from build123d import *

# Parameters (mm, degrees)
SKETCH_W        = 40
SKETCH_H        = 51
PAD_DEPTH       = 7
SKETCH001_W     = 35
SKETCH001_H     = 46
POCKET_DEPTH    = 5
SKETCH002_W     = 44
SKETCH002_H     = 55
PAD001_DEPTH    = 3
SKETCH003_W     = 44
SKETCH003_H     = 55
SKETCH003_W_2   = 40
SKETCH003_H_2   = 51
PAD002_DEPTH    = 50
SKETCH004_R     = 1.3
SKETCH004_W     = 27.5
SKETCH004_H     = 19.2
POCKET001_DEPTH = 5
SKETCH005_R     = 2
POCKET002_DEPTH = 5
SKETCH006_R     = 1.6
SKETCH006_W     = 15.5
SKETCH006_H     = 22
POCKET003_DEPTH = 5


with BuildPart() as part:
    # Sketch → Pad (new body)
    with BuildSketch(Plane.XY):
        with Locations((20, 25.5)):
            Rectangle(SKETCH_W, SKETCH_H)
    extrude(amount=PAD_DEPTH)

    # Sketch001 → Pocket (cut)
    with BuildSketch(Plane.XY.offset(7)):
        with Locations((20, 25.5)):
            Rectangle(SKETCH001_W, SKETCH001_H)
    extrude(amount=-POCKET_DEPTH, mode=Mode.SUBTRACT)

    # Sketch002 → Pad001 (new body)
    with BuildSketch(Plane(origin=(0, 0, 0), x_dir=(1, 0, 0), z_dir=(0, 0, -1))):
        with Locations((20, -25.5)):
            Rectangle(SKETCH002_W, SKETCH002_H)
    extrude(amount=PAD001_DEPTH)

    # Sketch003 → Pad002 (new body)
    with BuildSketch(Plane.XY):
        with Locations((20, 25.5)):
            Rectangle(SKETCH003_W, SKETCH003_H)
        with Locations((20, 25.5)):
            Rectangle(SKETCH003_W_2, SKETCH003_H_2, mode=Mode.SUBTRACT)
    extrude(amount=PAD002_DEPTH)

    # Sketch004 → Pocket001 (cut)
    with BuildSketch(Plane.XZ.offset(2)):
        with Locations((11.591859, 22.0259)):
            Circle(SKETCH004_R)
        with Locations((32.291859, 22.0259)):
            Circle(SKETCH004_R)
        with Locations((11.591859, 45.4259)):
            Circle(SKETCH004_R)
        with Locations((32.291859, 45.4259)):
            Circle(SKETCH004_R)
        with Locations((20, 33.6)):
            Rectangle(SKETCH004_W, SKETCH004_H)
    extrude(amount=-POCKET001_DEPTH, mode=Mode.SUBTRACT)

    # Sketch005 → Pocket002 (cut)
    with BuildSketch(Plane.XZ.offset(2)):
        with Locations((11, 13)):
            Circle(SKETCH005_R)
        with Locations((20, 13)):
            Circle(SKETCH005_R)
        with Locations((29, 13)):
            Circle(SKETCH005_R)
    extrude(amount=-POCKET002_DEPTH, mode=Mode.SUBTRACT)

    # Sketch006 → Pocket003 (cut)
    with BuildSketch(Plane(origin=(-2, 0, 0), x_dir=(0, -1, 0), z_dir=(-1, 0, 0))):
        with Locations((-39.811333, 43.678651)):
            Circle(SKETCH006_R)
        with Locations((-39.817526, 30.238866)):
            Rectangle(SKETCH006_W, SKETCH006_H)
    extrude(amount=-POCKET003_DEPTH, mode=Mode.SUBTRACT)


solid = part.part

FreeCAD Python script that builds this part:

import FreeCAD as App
import Part
import Sketcher
Q = App.Units.Quantity

doc = App.newDocument("Part")
params = doc.addObject("Spreadsheet::Sheet", "Params")
for row, (alias, value) in enumerate([
    ("sketch1_width", "40 mm"),
    ("sketch1_height", "51 mm"),
    ("pad1_length", "7 mm"),
    ("sketch2_width", "35 mm"),
    ("sketch2_height", "46 mm"),
    ("pocket1_length", "5 mm"),
    ("sketch3_width", "44 mm"),
    ("sketch3_height", "55 mm"),
    ("pad2_length", "3 mm"),
    ("sketch4_width", "44 mm"),
    ("sketch4_width2", "40 mm"),
    ("sketch4_height", "55 mm"),
    ("sketch4_height2", "51 mm"),
    ("pad3_length", "50 mm"),
    ("sketch5_diameter", "2.6 mm"),
    ("sketch5_width", "27.5 mm"),
    ("sketch5_height", "19.2 mm"),
    ("pocket2_length", "5 mm"),
    ("sketch6_diameter", "4 mm"),
    ("pocket3_length", "5 mm"),
    ("sketch7_diameter", "3.2 mm"),
    ("sketch7_height", "22 mm"),
    ("sketch7_width", "15.5 mm"),
    ("pocket4_length", "5 mm"),
], start=1):
    params.set(f"A{row}", alias)
    params.set(f"B{row}", "=" + value)
    params.setAlias(f"B{row}", alias)

body = doc.addObject("PartDesign::Body", "Body")

# Sketch on XY plane
sketch1 = body.newObject("Sketcher::SketchObject", "Sketch")
sketch1.AttachmentSupport = (doc.getObject("XY_Plane"), [""])
sketch1.MapMode = "FlatFace"
sketch1.addGeometry([
    Part.LineSegment(App.Vector(0, 51, 0), App.Vector(0, 0, 0)),
    Part.LineSegment(App.Vector(0, 0, 0), App.Vector(40, 0, 0)),
    Part.LineSegment(App.Vector(40, 0, 0), App.Vector(40, 51, 0)),
    Part.LineSegment(App.Vector(40, 51, 0), App.Vector(0, 51, 0)),
], False)
sketch1.addConstraint([
    Sketcher.Constraint("Coincident", 0, 2, 1, 1),
    Sketcher.Constraint("Coincident", 1, 2, 2, 1),
    Sketcher.Constraint("Coincident", 2, 2, 3, 1),
    Sketcher.Constraint("Coincident", 3, 2, 0, 1),
    Sketcher.Constraint("Vertical", 0),
    Sketcher.Constraint("Horizontal", 1),
    Sketcher.Constraint("Vertical", 2),
    Sketcher.Constraint("Horizontal", 3),
    Sketcher.Constraint("Coincident", 0, 2, -1, 1),
    Sketcher.Constraint("DistanceX", 1, 1, 1, 2, Q("40 mm")),
    Sketcher.Constraint("DistanceY", 0, 2, 0, 1, Q("51 mm")),
])
sketch1.setExpression("Constraints[9]", "Params.sketch1_width")
sketch1.setExpression("Constraints[10]", "Params.sketch1_height")
pad1 = body.newObject("PartDesign::Pad", "Pad")
pad1.Profile = sketch1
pad1.setExpression("Length", "Params.pad1_length")

# Sketch on XY plane
sketch2 = body.newObject("Sketcher::SketchObject", "Sketch001")
sketch2.AttachmentSupport = (doc.getObject("XY_Plane"), [""])
sketch2.MapMode = "FlatFace"
sketch2.AttachmentOffset = App.Placement(App.Vector(0, 0, 7), App.Rotation())
sketch2.addGeometry([
    Part.LineSegment(App.Vector(2.5, 48.5, 0), App.Vector(2.5, 2.5, 0)),
    Part.LineSegment(App.Vector(2.5, 2.5, 0), App.Vector(37.5, 2.5, 0)),
    Part.LineSegment(App.Vector(37.5, 2.5, 0), App.Vector(37.5, 48.5, 0)),
    Part.LineSegment(App.Vector(37.5, 48.5, 0), App.Vector(2.5, 48.5, 0)),
], False)
sketch2.addConstraint([
    Sketcher.Constraint("Coincident", 0, 2, 1, 1),
    Sketcher.Constraint("Coincident", 1, 2, 2, 1),
    Sketcher.Constraint("Coincident", 2, 2, 3, 1),
    Sketcher.Constraint("Coincident", 3, 2, 0, 1),
    Sketcher.Constraint("Vertical", 0),
    Sketcher.Constraint("Horizontal", 1),
    Sketcher.Constraint("Vertical", 2),
    Sketcher.Constraint("Horizontal", 3),
    Sketcher.Constraint("DistanceX", 1, 1, 1, 2, Q("35 mm")),
    Sketcher.Constraint("DistanceY", 0, 2, 0, 1, Q("46 mm")),
    Sketcher.Constraint("DistanceX", -1, 1, 0, 2, Q("2.5 mm")),
    Sketcher.Constraint("DistanceY", -1, 1, 0, 2, Q("2.5 mm")),
])
sketch2.setExpression("Constraints[8]", "Params.sketch2_width")
sketch2.setExpression("Constraints[9]", "Params.sketch2_height")
pocket1 = body.newObject("PartDesign::Pocket", "Pocket")
pocket1.Profile = sketch2
pocket1.setExpression("Length", "Params.pocket1_length")

# Sketch on XY plane
sketch3 = body.newObject("Sketcher::SketchObject", "Sketch002")
sketch3.AttachmentSupport = (doc.getObject("XY_Plane"), [""])
sketch3.MapMode = "FlatFace"
sketch3.addGeometry([
    Part.LineSegment(App.Vector(-2, -2, 0), App.Vector(-2, 53, 0)),
    Part.LineSegment(App.Vector(-2, 53, 0), App.Vector(42, 53, 0)),
    Part.LineSegment(App.Vector(42, 53, 0), App.Vector(42, -2, 0)),
    Part.LineSegment(App.Vector(42, -2, 0), App.Vector(-2, -2, 0)),
], False)
sketch3.addConstraint([
    Sketcher.Constraint("Coincident", 0, 2, 1, 1),
    Sketcher.Constraint("Coincident", 1, 2, 2, 1),
    Sketcher.Constraint("Coincident", 2, 2, 3, 1),
    Sketcher.Constraint("Coincident", 3, 2, 0, 1),
    Sketcher.Constraint("Vertical", 0),
    Sketcher.Constraint("Horizontal", 1),
    Sketcher.Constraint("Vertical", 2),
    Sketcher.Constraint("Horizontal", 3),
    Sketcher.Constraint("DistanceX", 1, 1, 1, 2, Q("44 mm")),
    Sketcher.Constraint("DistanceY", 0, 1, 0, 2, Q("55 mm")),
    Sketcher.Constraint("DistanceX", 0, 2, -1, 1, Q("2 mm")),
    Sketcher.Constraint("DistanceY", -1, 1, 0, 2, Q("53 mm")),
])
sketch3.setExpression("Constraints[8]", "Params.sketch3_width")
sketch3.setExpression("Constraints[9]", "Params.sketch3_height")
pad2 = body.newObject("PartDesign::Pad", "Pad001")
pad2.Profile = sketch3
pad2.setExpression("Length", "Params.pad2_length")
pad2.Reversed = True

# Sketch on XY plane
sketch4 = body.newObject("Sketcher::SketchObject", "Sketch003")
sketch4.AttachmentSupport = (doc.getObject("XY_Plane"), [""])
sketch4.MapMode = "FlatFace"
sketch4.addGeometry([
    Part.LineSegment(App.Vector(-2, 53, 0), App.Vector(-2, -2, 0)),  # 0
    Part.LineSegment(App.Vector(-2, -2, 0), App.Vector(42, -2, 0)),  # 1
    Part.LineSegment(App.Vector(42, -2, 0), App.Vector(42, 53, 0)),  # 2
    Part.LineSegment(App.Vector(42, 53, 0), App.Vector(-2, 53, 0)),  # 3
    Part.LineSegment(App.Vector(40, 0, 0), App.Vector(0, 0, 0)),  # 4
    Part.LineSegment(App.Vector(0, 0, 0), App.Vector(0, 51, 0)),  # 5
    Part.LineSegment(App.Vector(0, 51, 0), App.Vector(40, 51, 0)),  # 6
    Part.LineSegment(App.Vector(40, 51, 0), App.Vector(40, 0, 0)),  # 7
], False)
sketch4.addConstraint([
    Sketcher.Constraint("Coincident", 0, 2, 1, 1),
    Sketcher.Constraint("Coincident", 1, 2, 2, 1),
    Sketcher.Constraint("Coincident", 2, 2, 3, 1),
    Sketcher.Constraint("Coincident", 3, 2, 0, 1),
    Sketcher.Constraint("Coincident", 4, 2, 5, 1),
    Sketcher.Constraint("Coincident", 5, 2, 6, 1),
    Sketcher.Constraint("Coincident", 6, 2, 7, 1),
    Sketcher.Constraint("Coincident", 7, 2, 4, 1),
    Sketcher.Constraint("Vertical", 0),
    Sketcher.Constraint("Horizontal", 1),
    Sketcher.Constraint("Vertical", 2),
    Sketcher.Constraint("Horizontal", 3),
    Sketcher.Constraint("Horizontal", 4),
    Sketcher.Constraint("Vertical", 5),
    Sketcher.Constraint("Horizontal", 6),
    Sketcher.Constraint("Vertical", 7),
    Sketcher.Constraint("Coincident", 4, 2, -1, 1),
    Sketcher.Constraint("DistanceX", 1, 1, 1, 2, Q("44 mm")),
    Sketcher.Constraint("DistanceX", 4, 2, 4, 1, Q("40 mm")),
    Sketcher.Constraint("DistanceY", 0, 2, 0, 1, Q("55 mm")),
    Sketcher.Constraint("DistanceY", 5, 1, 5, 2, Q("51 mm")),
    Sketcher.Constraint("DistanceX", 0, 2, -1, 1, Q("2 mm")),
    Sketcher.Constraint("DistanceY", 0, 2, -1, 1, Q("2 mm")),
])
sketch4.setExpression("Constraints[17]", "Params.sketch4_width")
sketch4.setExpression("Constraints[18]", "Params.sketch4_width2")
sketch4.setExpression("Constraints[19]", "Params.sketch4_height")
sketch4.setExpression("Constraints[20]", "Params.sketch4_height2")
pad3 = body.newObject("PartDesign::Pad", "Pad002")
pad3.Profile = sketch4
pad3.setExpression("Length", "Params.pad3_length")

# Sketch on XZ plane
sketch5 = body.newObject("Sketcher::SketchObject", "Sketch004")
sketch5.AttachmentSupport = (doc.getObject("XZ_Plane"), [""])
sketch5.MapMode = "FlatFace"
sketch5.AttachmentOffset = App.Placement(App.Vector(0, 0, 2), App.Rotation())
sketch5.addGeometry([
    Part.Circle(App.Vector(11.591859, 22.0259, 0), App.Vector(0, 0, 1), 1.3),  # 0
    Part.Circle(App.Vector(32.291859, 22.0259, 0), App.Vector(0, 0, 1), 1.3),  # 1
    Part.Circle(App.Vector(11.591859, 45.4259, 0), App.Vector(0, 0, 1), 1.3),  # 2
    Part.Circle(App.Vector(32.291859, 45.4259, 0), App.Vector(0, 0, 1), 1.3),  # 3
    Part.LineSegment(App.Vector(6.25, 43.2, 0), App.Vector(6.25, 24, 0)),  # 4
    Part.LineSegment(App.Vector(6.25, 24, 0), App.Vector(33.75, 24, 0)),  # 5
    Part.LineSegment(App.Vector(33.75, 24, 0), App.Vector(33.75, 43.2, 0)),  # 6
    Part.LineSegment(App.Vector(33.75, 43.2, 0), App.Vector(6.25, 43.2, 0)),  # 7
], False)
sketch5.addConstraint([
    Sketcher.Constraint("Coincident", 4, 2, 5, 1),
    Sketcher.Constraint("Coincident", 5, 2, 6, 1),
    Sketcher.Constraint("Coincident", 6, 2, 7, 1),
    Sketcher.Constraint("Coincident", 7, 2, 4, 1),
    Sketcher.Constraint("Vertical", 4),
    Sketcher.Constraint("Horizontal", 5),
    Sketcher.Constraint("Vertical", 6),
    Sketcher.Constraint("Horizontal", 7),
    Sketcher.Constraint("Equal", 0, 1),
    Sketcher.Constraint("Equal", 1, 2),
    Sketcher.Constraint("Equal", 2, 3),
    Sketcher.Constraint("Horizontal", 0, 3, 1, 3),
    Sketcher.Constraint("Horizontal", 2, 3, 3, 3),
    Sketcher.Constraint("Vertical", 0, 3, 2, 3),
    Sketcher.Constraint("Vertical", 1, 3, 3, 3),
    Sketcher.Constraint("Diameter", 0, Q("2.6 mm")),
    Sketcher.Constraint("DistanceX", 5, 1, 5, 2, Q("27.5 mm")),
    Sketcher.Constraint("DistanceY", 4, 2, 4, 1, Q("19.2 mm")),
    Sketcher.Constraint("DistanceY", -1, 1, 4, 2, Q("24 mm")),
    Sketcher.Constraint("DistanceX", 0, 3, 1, 3, Q("20.7 mm")),
    Sketcher.Constraint("DistanceY", 0, 3, 2, 3, Q("23.4 mm")),
    Sketcher.Constraint("DistanceX", -1, 1, 4, 2, Q("6.25 mm")),
    Sketcher.Constraint("DistanceY", -1, 1, 0, 3, Q("22.0259 mm")),
    Sketcher.Constraint("DistanceX", -1, 1, 0, 3, Q("11.591859 mm")),
])
sketch5.setExpression("Constraints[15]", "Params.sketch5_diameter")
sketch5.setExpression("Constraints[16]", "Params.sketch5_width")
sketch5.setExpression("Constraints[17]", "Params.sketch5_height")
pocket2 = body.newObject("PartDesign::Pocket", "Pocket001")
pocket2.Profile = sketch5
pocket2.setExpression("Length", "Params.pocket2_length")

# Sketch on XZ plane
sketch6 = body.newObject("Sketcher::SketchObject", "Sketch005")
sketch6.AttachmentSupport = (doc.getObject("XZ_Plane"), [""])
sketch6.MapMode = "FlatFace"
sketch6.AttachmentOffset = App.Placement(App.Vector(0, 0, 2), App.Rotation())
sketch6.addGeometry([
    Part.Circle(App.Vector(11, 13, 0), App.Vector(0, 0, 1), 2),
    Part.Circle(App.Vector(20, 13, 0), App.Vector(0, 0, 1), 2),
    Part.Circle(App.Vector(29, 13, 0), App.Vector(0, 0, 1), 2),
], False)
sketch6.addConstraint([
    Sketcher.Constraint("Equal", 0, 1),
    Sketcher.Constraint("Equal", 1, 2),
    Sketcher.Constraint("Horizontal", 0, 3, 1, 3),
    Sketcher.Constraint("Horizontal", 1, 3, 2, 3),
    Sketcher.Constraint("Diameter", 0, Q("4 mm")),
    Sketcher.Constraint("DistanceX", -1, 1, 0, 3, Q("11 mm")),
    Sketcher.Constraint("DistanceY", -1, 1, 0, 3, Q("13 mm")),
    Sketcher.Constraint("DistanceX", -1, 1, 1, 3, Q("20 mm")),
    Sketcher.Constraint("DistanceX", -1, 1, 2, 3, Q("29 mm")),
])
sketch6.setExpression("Constraints[4]", "Params.sketch6_diameter")
pocket3 = body.newObject("PartDesign::Pocket", "Pocket002")
pocket3.Profile = sketch6
pocket3.setExpression("Length", "Params.pocket3_length")

# Sketch on YZ plane
sketch7 = body.newObject("Sketcher::SketchObject", "Sketch006")
sketch7.AttachmentSupport = (doc.getObject("YZ_Plane"), [""])
sketch7.MapMode = "FlatFace"
sketch7.AttachmentOffset = App.Placement(App.Vector(0, 0, -2), App.Rotation())
sketch7.addGeometry([
    Part.Circle(App.Vector(39.811333, 43.678651, 0), App.Vector(0, 0, 1), 1.6),  # 0
    Part.LineSegment(App.Vector(47.567526, 41.238866, 0), App.Vector(47.567526, 19.238866, 0)),  # 1
    Part.LineSegment(App.Vector(47.567526, 19.238866, 0), App.Vector(32.067526, 19.238866, 0)),  # 2
    Part.LineSegment(App.Vector(32.067526, 19.238866, 0), App.Vector(32.067526, 41.238866, 0)),  # 3
    Part.LineSegment(App.Vector(32.067526, 41.238866, 0), App.Vector(47.567526, 41.238866, 0)),  # 4
], False)
sketch7.addConstraint([
    Sketcher.Constraint("Coincident", 1, 2, 2, 1),
    Sketcher.Constraint("Coincident", 2, 2, 3, 1),
    Sketcher.Constraint("Coincident", 3, 2, 4, 1),
    Sketcher.Constraint("Coincident", 4, 2, 1, 1),
    Sketcher.Constraint("Vertical", 1),
    Sketcher.Constraint("Horizontal", 2),
    Sketcher.Constraint("Vertical", 3),
    Sketcher.Constraint("Horizontal", 4),
    Sketcher.Constraint("Diameter", 0, Q("3.2 mm")),
    Sketcher.Constraint("DistanceY", 1, 2, 1, 1, Q("22 mm")),
    Sketcher.Constraint("DistanceX", 2, 2, 2, 1, Q("15.5 mm")),
    Sketcher.Constraint("DistanceY", -1, 1, 0, 3, Q("43.678651 mm")),
    Sketcher.Constraint("DistanceX", -1, 1, 0, 3, Q("39.811333 mm")),
    Sketcher.Constraint("DistanceX", -1, 1, 1, 2, Q("47.567526 mm")),
    Sketcher.Constraint("DistanceY", -1, 1, 1, 2, Q("19.238866 mm")),
])
sketch7.setExpression("Constraints[8]", "Params.sketch7_diameter")
sketch7.setExpression("Constraints[9]", "Params.sketch7_height")
sketch7.setExpression("Constraints[10]", "Params.sketch7_width")
pocket4 = body.newObject("PartDesign::Pocket", "Pocket003")
pocket4.Profile = sketch7
pocket4.setExpression("Length", "Params.pocket4_length")
pocket4.Reversed = True

doc.recompute()
